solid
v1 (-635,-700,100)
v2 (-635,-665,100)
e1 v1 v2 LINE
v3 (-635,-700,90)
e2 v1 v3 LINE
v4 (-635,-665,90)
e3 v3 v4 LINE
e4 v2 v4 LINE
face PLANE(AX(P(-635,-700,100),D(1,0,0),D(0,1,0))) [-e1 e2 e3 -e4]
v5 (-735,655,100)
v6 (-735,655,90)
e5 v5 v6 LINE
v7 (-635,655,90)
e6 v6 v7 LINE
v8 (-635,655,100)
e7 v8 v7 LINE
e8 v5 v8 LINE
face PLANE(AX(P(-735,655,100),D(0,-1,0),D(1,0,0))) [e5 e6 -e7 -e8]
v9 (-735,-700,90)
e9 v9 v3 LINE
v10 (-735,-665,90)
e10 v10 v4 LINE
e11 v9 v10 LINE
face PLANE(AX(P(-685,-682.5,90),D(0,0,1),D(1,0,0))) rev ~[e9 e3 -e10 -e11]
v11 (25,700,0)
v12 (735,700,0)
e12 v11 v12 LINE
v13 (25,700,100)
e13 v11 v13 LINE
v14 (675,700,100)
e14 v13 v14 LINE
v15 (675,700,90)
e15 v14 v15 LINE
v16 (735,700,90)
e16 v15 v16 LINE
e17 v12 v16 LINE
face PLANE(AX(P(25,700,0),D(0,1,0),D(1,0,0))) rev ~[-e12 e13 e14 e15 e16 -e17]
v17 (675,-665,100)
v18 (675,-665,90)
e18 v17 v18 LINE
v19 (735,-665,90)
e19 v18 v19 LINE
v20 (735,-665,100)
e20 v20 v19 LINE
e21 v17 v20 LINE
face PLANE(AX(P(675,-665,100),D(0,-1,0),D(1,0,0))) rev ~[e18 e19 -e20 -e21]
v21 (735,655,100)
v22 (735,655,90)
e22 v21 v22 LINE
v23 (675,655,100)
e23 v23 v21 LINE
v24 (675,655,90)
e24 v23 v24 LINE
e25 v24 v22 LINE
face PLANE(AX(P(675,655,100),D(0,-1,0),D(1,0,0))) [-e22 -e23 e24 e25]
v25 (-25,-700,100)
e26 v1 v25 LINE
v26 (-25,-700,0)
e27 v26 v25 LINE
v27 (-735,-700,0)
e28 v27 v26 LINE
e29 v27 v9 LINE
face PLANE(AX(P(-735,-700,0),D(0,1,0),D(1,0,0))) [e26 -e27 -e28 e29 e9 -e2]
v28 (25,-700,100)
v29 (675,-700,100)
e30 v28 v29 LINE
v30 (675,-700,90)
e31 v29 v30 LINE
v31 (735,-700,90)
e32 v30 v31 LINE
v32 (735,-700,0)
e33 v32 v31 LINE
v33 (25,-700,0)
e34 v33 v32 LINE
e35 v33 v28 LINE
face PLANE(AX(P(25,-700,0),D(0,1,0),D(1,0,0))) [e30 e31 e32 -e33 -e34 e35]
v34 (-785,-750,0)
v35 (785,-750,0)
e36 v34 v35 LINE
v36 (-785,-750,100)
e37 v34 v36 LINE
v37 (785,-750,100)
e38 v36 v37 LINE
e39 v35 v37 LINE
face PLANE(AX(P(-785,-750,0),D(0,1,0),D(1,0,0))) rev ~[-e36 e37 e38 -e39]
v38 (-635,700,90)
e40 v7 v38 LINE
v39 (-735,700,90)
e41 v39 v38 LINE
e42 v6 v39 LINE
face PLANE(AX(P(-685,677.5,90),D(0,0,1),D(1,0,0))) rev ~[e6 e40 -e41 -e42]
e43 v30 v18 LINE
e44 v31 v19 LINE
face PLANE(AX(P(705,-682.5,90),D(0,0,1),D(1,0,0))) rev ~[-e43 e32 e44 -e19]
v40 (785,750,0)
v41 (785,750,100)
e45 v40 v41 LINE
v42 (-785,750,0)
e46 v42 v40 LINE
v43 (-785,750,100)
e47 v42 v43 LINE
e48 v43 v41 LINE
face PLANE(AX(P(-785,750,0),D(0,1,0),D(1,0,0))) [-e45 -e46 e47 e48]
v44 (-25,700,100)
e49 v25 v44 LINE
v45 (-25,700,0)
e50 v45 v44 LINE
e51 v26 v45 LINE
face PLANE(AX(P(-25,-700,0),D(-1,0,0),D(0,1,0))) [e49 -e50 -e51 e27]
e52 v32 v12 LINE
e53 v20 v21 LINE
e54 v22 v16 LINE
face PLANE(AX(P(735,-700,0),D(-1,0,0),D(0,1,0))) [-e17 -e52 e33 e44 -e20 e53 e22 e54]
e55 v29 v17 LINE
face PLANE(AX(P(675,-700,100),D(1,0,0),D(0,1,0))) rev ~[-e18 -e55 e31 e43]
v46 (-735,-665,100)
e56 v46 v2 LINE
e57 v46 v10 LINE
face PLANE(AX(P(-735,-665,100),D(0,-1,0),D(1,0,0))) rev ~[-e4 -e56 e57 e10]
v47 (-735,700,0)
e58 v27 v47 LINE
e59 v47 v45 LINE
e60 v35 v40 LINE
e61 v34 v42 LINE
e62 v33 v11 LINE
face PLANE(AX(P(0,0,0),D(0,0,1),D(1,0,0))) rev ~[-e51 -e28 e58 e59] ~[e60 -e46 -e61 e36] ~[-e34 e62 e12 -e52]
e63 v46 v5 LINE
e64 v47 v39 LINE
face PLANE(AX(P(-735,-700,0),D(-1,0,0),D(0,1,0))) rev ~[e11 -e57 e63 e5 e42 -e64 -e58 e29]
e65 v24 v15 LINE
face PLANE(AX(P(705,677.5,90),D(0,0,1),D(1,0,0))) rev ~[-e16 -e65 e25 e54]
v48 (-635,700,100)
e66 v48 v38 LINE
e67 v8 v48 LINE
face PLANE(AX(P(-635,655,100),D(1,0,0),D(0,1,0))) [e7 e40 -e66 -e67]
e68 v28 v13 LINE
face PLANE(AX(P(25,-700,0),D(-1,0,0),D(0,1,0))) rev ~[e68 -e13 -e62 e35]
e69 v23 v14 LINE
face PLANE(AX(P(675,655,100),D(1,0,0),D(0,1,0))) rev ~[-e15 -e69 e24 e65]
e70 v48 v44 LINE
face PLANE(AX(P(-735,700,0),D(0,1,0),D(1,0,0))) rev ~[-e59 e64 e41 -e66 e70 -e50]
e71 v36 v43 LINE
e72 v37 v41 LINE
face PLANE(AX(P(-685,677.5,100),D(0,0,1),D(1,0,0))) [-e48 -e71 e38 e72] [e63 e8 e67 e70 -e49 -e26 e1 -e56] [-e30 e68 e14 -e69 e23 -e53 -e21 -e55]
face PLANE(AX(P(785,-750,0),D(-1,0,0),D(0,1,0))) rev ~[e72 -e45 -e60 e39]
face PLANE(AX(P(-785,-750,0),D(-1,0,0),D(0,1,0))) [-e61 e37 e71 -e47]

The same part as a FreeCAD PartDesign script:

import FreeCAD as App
import Part
import Sketcher
from FreeCAD import Vector


def add_polygon(sketch, points):
    """Adds a closed chain of lines whose ends are joined by coincident constraints."""
    first, n = sketch.GeometryCount, len(points)
    for a, b in zip(points, points[1:] + points[:1]):
        sketch.addGeometry(Part.LineSegment(App.Vector(*a, 0), App.Vector(*b, 0)), False)
    for i in range(n):
        sketch.addConstraint(Sketcher.Constraint("Coincident", first + i, 2, first + (i + 1) % n, 1))

doc = App.newDocument("Part")
body = doc.addObject("PartDesign::Body", "Body")

# Sketch on XY plane
sketch1 = body.newObject("Sketcher::SketchObject", "Sketch")
sketch1.AttachmentSupport = (doc.getObject("XY_Plane"), [""])
sketch1.MapMode = "FlatFace"
add_polygon(sketch1, [(-785, 750), (-785, -750), (785, -750), (785, 750)])  # lines 0-3
add_polygon(sketch1, [(-25, -700), (-735, -700), (-735, 700), (-25, 700)])  # lines 4-7
add_polygon(sketch1, [(735, -700), (25, -700), (25, 700), (735, 700)])  # lines 8-11
sketch1.addConstraint([
    Sketcher.Constraint("Vertical", 0),
    Sketcher.Constraint("Horizontal", 1),
    Sketcher.Constraint("Vertical", 2),
    Sketcher.Constraint("Horizontal", 3),
    Sketcher.Constraint("Horizontal", 4),
    Sketcher.Constraint("Vertical", 5),
    Sketcher.Constraint("Horizontal", 6),
    Sketcher.Constraint("Vertical", 7),
    Sketcher.Constraint("Horizontal", 8),
    Sketcher.Constraint("Vertical", 9),
    Sketcher.Constraint("Horizontal", 10),
    Sketcher.Constraint("Vertical", 11),
    Sketcher.Constraint("Symmetric", 0, 2, 2, 2, -1, 1),
    Sketcher.Constraint("Symmetric", 6, 2, 8, 2, -1, 1),
    Sketcher.Constraint("Symmetric", 4, 2, 10, 2, -1, 1),
    Sketcher.Constraint("Horizontal", 7, 2, 8, 2),
    Sketcher.Constraint("DistanceX", 1, 1, 1, 2, 1570.0),
    Sketcher.Constraint("DistanceX", 4, 2, 4, 1, 710.0),
    Sketcher.Constraint("DistanceY", 0, 2, 0, 1, 1500.0),
    Sketcher.Constraint("DistanceY", 5, 1, 5, 2, 1400.0),
    Sketcher.Constraint("DistanceX", 4, 2, -1, 1, 735.0),
])
pad1 = body.newObject("PartDesign::Pad", "Pad")
pad1.Profile = sketch1
pad1.Length = 100

# Sketch on XY plane
sketch2 = body.newObject("Sketcher::SketchObject", "Sketch001")
sketch2.AttachmentSupport = (doc.getObject("XY_Plane"), [""])
sketch2.MapMode = "FlatFace"
sketch2.AttachmentOffset = App.Placement(Vector(0, 0, 100), App.Rotation())
add_polygon(sketch2, [(-735, 700), (-735, 655), (-635, 655), (-635, 700)])  # lines 0-3
add_polygon(sketch2, [(675, 700), (675, 655), (735, 655), (735, 700)])  # lines 4-7
add_polygon(sketch2, [(675, -665), (675, -700), (735, -700), (735, -665)])  # lines 8-11
add_polygon(sketch2, [(-735, -665), (-735, -700), (-635, -700), (-635, -665)])  # lines 12-15
sketch2.addConstraint([
    Sketcher.Constraint("Vertical", 0),
    Sketcher.Constraint("Horizontal", 1),
    Sketcher.Constraint("Vertical", 2),
    Sketcher.Constraint("Horizontal", 3),
    Sketcher.Constraint("Vertical", 4),
    Sketcher.Constraint("Horizontal", 5),
    Sketcher.Constraint("Vertical", 6),
    Sketcher.Constraint("Horizontal", 7),
    Sketcher.Constraint("Vertical", 8),
    Sketcher.Constraint("Horizontal", 9),
    Sketcher.Constraint("Vertical", 10),
    Sketcher.Constraint("Horizontal", 11),
    Sketcher.Constraint("Vertical", 12),
    Sketcher.Constraint("Horizontal", 13),
    Sketcher.Constraint("Vertical", 14),
    Sketcher.Constraint("Horizontal", 15),
    Sketcher.Constraint("Symmetric", 3, 2, 9, 2, -1, 1),
    Sketcher.Constraint("Symmetric", 6, 2, 12, 2, -1, 1),
    Sketcher.Constraint("Symmetric", 0, 2, 5, 2, -2),
    Sketcher.Constraint("Symmetric", 7, 2, 8, 2, -1),
    Sketcher.Constraint("Horizontal", 11, 2, 14, 2),
    Sketcher.Constraint("Vertical", 2, 2, 13, 2),
    Sketcher.Constraint("DistanceX", 1, 1, 1, 2, 100.0),
    Sketcher.Constraint("DistanceX", 5, 1, 5, 2, 60.0),
    Sketcher.Constraint("DistanceY", 0, 2, 0, 1, 45.0),
    Sketcher.Constraint("DistanceY", 8, 2, 8, 1, 35.0),
    Sketcher.Constraint("DistanceX", 0, 2, -1, 1, 735.0),
    Sketcher.Constraint("DistanceY", -1, 1, 0, 2, 655.0),
])
pad2 = body.newObject("PartDesign::Pad", "Pad001")
pad2.Profile = sketch2
pad2.Length = 10
pad2.Reversed = True

doc.recompute()
